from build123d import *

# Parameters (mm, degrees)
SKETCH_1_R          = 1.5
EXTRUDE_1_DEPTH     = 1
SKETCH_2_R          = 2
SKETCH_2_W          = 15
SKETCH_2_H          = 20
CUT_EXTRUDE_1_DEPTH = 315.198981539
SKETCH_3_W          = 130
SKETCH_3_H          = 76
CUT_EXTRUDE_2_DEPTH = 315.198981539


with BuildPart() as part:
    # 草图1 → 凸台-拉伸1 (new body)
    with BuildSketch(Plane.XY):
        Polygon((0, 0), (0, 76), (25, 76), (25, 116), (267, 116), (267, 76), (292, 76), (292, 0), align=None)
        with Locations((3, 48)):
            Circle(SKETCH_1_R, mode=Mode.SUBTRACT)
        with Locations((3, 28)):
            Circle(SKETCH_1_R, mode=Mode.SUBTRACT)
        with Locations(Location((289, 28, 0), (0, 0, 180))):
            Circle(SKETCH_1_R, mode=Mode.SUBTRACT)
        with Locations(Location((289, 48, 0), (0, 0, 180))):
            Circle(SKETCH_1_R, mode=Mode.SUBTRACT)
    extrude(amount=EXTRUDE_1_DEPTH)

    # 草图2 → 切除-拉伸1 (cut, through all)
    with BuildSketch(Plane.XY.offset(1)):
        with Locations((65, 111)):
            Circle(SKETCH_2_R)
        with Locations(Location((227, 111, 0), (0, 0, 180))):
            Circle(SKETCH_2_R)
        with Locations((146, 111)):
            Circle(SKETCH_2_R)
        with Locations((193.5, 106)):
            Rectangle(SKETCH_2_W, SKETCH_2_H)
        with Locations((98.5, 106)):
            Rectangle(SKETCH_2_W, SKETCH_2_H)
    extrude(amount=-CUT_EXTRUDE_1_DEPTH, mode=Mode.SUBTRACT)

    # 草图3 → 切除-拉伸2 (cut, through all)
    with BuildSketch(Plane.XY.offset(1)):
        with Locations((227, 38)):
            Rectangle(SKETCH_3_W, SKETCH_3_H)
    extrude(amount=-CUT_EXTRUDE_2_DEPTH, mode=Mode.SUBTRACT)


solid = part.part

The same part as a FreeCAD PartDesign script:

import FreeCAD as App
import Part
import Sketcher
from FreeCAD import Vector
Q = App.Units.Quantity


def add_polygon(sketch, points):
    """Adds a closed chain of lines whose ends are joined by coincident constraints."""
    first, n = sketch.GeometryCount, len(points)
    for a, b in zip(points, points[1:] + points[:1]):
        sketch.addGeometry(Part.LineSegment(App.Vector(*a, 0), App.Vector(*b, 0)), False)
    for i in range(n):
        sketch.addConstraint(Sketcher.Constraint("Coincident", first + i, 2, first + (i + 1) % n, 1))

doc = App.newDocument("Part")
body = doc.addObject("PartDesign::Body", "Body")

sketch1 = doc.addObject("Sketcher::SketchObject", "Sketch")
body.addObject(sketch1)
sketch1.AttachmentSupport = (doc.XY_Plane, [""])
sketch1.MapMode = "FlatFace"
add_polygon(sketch1, [(0, 76), (0, 0), (292, 0), (292, 76), (267, 76), (267, 116), (25, 116), (25, 76)])
sketch1.addGeometry(Part.Circle(Vector(289, 28, 0), Vector(0, 0, 1), 1.5), False)
sketch1.addGeometry(Part.Circle(Vector(3, 28, 0), Vector(0, 0, 1), 1.5), False)
sketch1.addGeometry(Part.Circle(Vector(289, 48, 0), Vector(0, 0, 1), 1.5), False)
sketch1.addGeometry(Part.Circle(Vector(3, 48, 0), Vector(0, 0, 1), 1.5), False)
sketch1.addConstraint(Sketcher.Constraint("Vertical", 0))
sketch1.addConstraint(Sketcher.Constraint("Horizontal", 1))
sketch1.addConstraint(Sketcher.Constraint("Vertical", 2))
sketch1.addConstraint(Sketcher.Constraint("Horizontal", 3))
sketch1.addConstraint(Sketcher.Constraint("Vertical", 4))
sketch1.addConstraint(Sketcher.Constraint("Horizontal", 5))
sketch1.addConstraint(Sketcher.Constraint("Vertical", 6))
sketch1.addConstraint(Sketcher.Constraint("Horizontal", 7))
sketch1.addConstraint(Sketcher.Constraint("Coincident", 0, 2, -1, 1))
sketch1.addConstraint(Sketcher.Constraint("Equal", 8, 9))
sketch1.addConstraint(Sketcher.Constraint("Equal", 9, 10))
sketch1.addConstraint(Sketcher.Constraint("Equal", 10, 11))
sketch1.addConstraint(Sketcher.Constraint("Horizontal", 8, 3, 9, 3))
sketch1.addConstraint(Sketcher.Constraint("Horizontal", 10, 3, 11, 3))
sketch1.addConstraint(Sketcher.Constraint("Horizontal", 3, 2, 6, 2))
sketch1.addConstraint(Sketcher.Constraint("Vertical", 8, 3, 10, 3))
sketch1.addConstraint(Sketcher.Constraint("Vertical", 9, 3, 11, 3))
sketch1.addConstraint(Sketcher.Constraint("Equal", 3, 7))
sketch1.addConstraint(Sketcher.Constraint("Diameter", 8, Q("3 mm")))
sketch1.addConstraint(Sketcher.Constraint("DistanceX", 1, 1, 1, 2, Q("292 mm")))
sketch1.addConstraint(Sketcher.Constraint("DistanceX", 3, 2, 3, 1, Q("25 mm")))
sketch1.addConstraint(Sketcher.Constraint("DistanceY", 0, 2, 0, 1, Q("76 mm")))
sketch1.addConstraint(Sketcher.Constraint("DistanceY", 4, 1, 4, 2, Q("40 mm")))
sketch1.addConstraint(Sketcher.Constraint("DistanceX", -1, 1, 8, 3, Q("289 mm")))
sketch1.addConstraint(Sketcher.Constraint("DistanceY", -1, 1, 8, 3, Q("28 mm")))
sketch1.addConstraint(Sketcher.Constraint("DistanceX", -1, 1, 9, 3, Q("3 mm")))
sketch1.addConstraint(Sketcher.Constraint("DistanceY", -1, 1, 10, 3, Q("48 mm")))
pad1 = doc.addObject("PartDesign::Pad", "Pad")
body.addObject(pad1)
pad1.Profile = sketch1
pad1.Length = 1

sketch2 = doc.addObject("Sketcher::SketchObject", "Sketch001")
body.addObject(sketch2)
sketch2.AttachmentSupport = (doc.XY_Plane, [""])
sketch2.MapMode = "FlatFace"
sketch2.AttachmentOffset = App.Placement(Vector(0, 0, 1), App.Rotation())
sketch2.addGeometry(Part.Circle(Vector(65, 111, 0), Vector(0, 0, 1), 2), False)
sketch2.addGeometry(Part.Circle(Vector(227, 111, 0), Vector(0, 0, 1), 2), False)
sketch2.addGeometry(Part.Circle(Vector(146, 111, 0), Vector(0, 0, 1), 2), False)
add_polygon(sketch2, [(186, 116), (186, 96), (201, 96), (201, 116)])
add_polygon(sketch2, [(91, 116), (91, 96), (106, 96), (106, 116)])
sketch2.addConstraint(Sketcher.Constraint("Vertical", 3))
sketch2.addConstraint(Sketcher.Constraint("Horizontal", 4))
sketch2.addConstraint(Sketcher.Constraint("Vertical", 5))
sketch2.addConstraint(Sketcher.Constraint("Horizontal", 6))
sketch2.addConstraint(Sketcher.Constraint("Vertical", 7))
sketch2.addConstraint(Sketcher.Constraint("Horizontal", 8))
sketch2.addConstraint(Sketcher.Constraint("Vertical", 9))
sketch2.addConstraint(Sketcher.Constraint("Horizontal", 10))
sketch2.addConstraint(Sketcher.Constraint("Equal", 0, 1))
sketch2.addConstraint(Sketcher.Constraint("Equal", 1, 2))
sketch2.addConstraint(Sketcher.Constraint("Horizontal", 0, 3, 1, 3))
sketch2.addConstraint(Sketcher.Constraint("Horizontal", 1, 3, 2, 3))
sketch2.addConstraint(Sketcher.Constraint("Horizontal", 4, 2, 7, 2))
sketch2.addConstraint(Sketcher.Constraint("Horizontal", 6, 2, 9, 2))
sketch2.addConstraint(Sketcher.Constraint("Equal", 6, 8))
sketch2.addConstraint(Sketcher.Constraint("Diameter", 0, Q("4 mm")))
sketch2.addConstraint(Sketcher.Constraint("DistanceX", 4, 1, 4, 2, Q("15 mm")))
sketch2.addConstraint(Sketcher.Constraint("DistanceY", 3, 2, 3, 1, Q("20 mm")))
sketch2.addConstraint(Sketcher.Constraint("DistanceX", -1, 1, 0, 3, Q("65 mm")))
sketch2.addConstraint(Sketcher.Constraint("DistanceY", -1, 1, 0, 3, Q("111 mm")))
sketch2.addConstraint(Sketcher.Constraint("DistanceX", -1, 1, 1, 3, Q("227 mm")))
sketch2.addConstraint(Sketcher.Constraint("DistanceX", -1, 1, 2, 3, Q("146 mm")))
sketch2.addConstraint(Sketcher.Constraint("DistanceX", -1, 1, 3, 2, Q("186 mm")))
sketch2.addConstraint(Sketcher.Constraint("DistanceY", -1, 1, 3, 2, Q("96 mm")))
sketch2.addConstraint(Sketcher.Constraint("DistanceX", -1, 1, 7, 2, Q("91 mm")))
pocket1 = doc.addObject("PartDesign::Pocket", "Pocket")
body.addObject(pocket1)
pocket1.Profile = sketch2
pocket1.Type = "ThroughAll"

sketch3 = doc.addObject("Sketcher::SketchObject", "Sketch002")
body.addObject(sketch3)
sketch3.AttachmentSupport = (doc.XY_Plane, [""])
sketch3.MapMode = "FlatFace"
sketch3.AttachmentOffset = App.Placement(Vector(0, 0, 1), App.Rotation())
add_polygon(sketch3, [(162, 76), (162, 0), (292, 0), (292, 76)])
sketch3.addConstraint(Sketcher.Constraint("Vertical", 0))
sketch3.addConstraint(Sketcher.Constraint("Horizontal", 1))
sketch3.addConstraint(Sketcher.Constraint("Vertical", 2))
sketch3.addConstraint(Sketcher.Constraint("Horizontal", 3))
sketch3.addConstraint(Sketcher.Constraint("PointOnObject", 0, 2, -1))
sketch3.addConstraint(Sketcher.Constraint("DistanceX", 1, 1, 1, 2, Q("130 mm")))
sketch3.addConstraint(Sketcher.Constraint("DistanceY", 0, 2, 0, 1, Q("76 mm")))
sketch3.addConstraint(Sketcher.Constraint("DistanceX", -1, 1, 0, 2, Q("162 mm")))
pocket2 = doc.addObject("PartDesign::Pocket", "Pocket001")
body.addObject(pocket2)
pocket2.Profile = sketch3
pocket2.Type = "ThroughAll"

doc.recompute()
